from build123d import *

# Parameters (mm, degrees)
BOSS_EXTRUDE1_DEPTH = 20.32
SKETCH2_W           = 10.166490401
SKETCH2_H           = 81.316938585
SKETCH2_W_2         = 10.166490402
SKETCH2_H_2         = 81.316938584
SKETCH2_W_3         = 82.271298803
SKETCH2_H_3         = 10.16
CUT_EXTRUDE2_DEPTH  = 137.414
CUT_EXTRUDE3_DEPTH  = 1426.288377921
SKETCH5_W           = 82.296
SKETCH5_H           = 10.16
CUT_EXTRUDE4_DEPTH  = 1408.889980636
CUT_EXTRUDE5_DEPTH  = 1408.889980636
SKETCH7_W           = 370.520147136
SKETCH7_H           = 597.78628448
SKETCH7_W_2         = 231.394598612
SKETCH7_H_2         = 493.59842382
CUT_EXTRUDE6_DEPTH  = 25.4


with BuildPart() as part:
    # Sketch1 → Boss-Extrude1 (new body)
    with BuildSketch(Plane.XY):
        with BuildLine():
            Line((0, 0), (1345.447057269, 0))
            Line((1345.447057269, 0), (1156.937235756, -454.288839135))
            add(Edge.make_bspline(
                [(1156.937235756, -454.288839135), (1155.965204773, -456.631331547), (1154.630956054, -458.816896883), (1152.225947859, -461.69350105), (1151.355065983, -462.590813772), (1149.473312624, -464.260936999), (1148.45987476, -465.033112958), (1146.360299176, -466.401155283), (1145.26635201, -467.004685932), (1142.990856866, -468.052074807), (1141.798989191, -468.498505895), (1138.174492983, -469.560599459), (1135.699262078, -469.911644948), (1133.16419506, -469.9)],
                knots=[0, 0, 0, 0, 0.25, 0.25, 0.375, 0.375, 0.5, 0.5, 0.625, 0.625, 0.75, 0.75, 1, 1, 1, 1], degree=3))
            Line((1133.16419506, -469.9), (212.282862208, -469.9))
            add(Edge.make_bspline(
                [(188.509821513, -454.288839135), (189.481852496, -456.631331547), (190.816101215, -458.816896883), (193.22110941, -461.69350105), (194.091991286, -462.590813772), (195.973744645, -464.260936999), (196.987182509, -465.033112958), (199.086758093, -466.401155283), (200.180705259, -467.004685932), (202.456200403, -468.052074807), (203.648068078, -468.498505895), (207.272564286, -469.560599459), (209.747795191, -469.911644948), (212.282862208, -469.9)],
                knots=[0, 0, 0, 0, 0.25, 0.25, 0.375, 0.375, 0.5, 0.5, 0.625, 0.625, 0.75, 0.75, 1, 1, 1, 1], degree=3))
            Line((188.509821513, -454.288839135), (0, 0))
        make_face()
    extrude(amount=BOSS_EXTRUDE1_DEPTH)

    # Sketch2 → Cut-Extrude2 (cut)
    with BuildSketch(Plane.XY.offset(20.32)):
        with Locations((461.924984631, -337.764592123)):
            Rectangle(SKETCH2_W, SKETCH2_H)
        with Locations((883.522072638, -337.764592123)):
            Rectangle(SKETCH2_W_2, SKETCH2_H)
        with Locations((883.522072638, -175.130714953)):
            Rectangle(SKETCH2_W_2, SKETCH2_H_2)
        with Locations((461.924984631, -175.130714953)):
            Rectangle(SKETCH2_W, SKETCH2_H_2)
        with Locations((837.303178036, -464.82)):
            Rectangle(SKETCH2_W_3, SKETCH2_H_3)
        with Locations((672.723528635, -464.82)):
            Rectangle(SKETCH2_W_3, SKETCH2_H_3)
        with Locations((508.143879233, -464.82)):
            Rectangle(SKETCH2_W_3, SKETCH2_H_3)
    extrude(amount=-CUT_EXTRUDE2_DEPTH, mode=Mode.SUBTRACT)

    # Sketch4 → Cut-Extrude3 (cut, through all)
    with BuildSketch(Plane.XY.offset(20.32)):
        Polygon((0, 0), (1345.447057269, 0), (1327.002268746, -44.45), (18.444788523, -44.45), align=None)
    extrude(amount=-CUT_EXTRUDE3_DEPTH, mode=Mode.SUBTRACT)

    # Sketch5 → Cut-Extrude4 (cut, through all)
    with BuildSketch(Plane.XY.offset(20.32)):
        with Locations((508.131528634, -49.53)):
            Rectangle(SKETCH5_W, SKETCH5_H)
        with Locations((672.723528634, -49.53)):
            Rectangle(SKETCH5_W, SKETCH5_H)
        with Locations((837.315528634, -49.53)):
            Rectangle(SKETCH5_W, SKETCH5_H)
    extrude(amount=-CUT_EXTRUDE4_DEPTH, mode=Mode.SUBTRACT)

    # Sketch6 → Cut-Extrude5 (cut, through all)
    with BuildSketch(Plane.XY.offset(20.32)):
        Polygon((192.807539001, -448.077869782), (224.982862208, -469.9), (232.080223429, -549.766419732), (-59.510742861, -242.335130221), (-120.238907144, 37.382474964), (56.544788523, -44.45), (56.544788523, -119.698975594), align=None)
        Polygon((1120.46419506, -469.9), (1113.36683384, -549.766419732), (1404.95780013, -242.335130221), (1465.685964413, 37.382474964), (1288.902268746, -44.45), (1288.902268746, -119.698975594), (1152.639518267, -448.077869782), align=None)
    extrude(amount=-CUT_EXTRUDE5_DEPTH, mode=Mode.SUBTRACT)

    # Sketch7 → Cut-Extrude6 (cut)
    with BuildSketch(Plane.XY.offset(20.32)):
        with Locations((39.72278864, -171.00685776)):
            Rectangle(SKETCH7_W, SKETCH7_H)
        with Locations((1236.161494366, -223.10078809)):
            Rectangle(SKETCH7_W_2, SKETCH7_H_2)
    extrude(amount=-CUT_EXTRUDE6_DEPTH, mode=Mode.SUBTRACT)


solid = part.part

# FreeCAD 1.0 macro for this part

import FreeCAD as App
import Part
import Sketcher

V = App.Vector
Q = App.Units.Quantity

doc = App.newDocument("Part")
body = doc.addObject("PartDesign::Body", "Body")

# Sketch on XY plane
sketch1 = doc.addObject("Sketcher::SketchObject", "Sketch")
body.addObject(sketch1)
sketch1.AttachmentSupport = (doc.XY_Plane, [""])
sketch1.MapMode = "FlatFace"
sketch1.addGeometry(Part.LineSegment(V(1345.447057, 0, 0), V(0, 0, 0)), False)
sketch1.addGeometry(Part.LineSegment(V(0, 0, 0), V(188.509822, -454.288839, 0)), False)
sketch1.addGeometry(Part.BSplineCurve([V(188.509822, -454.288839, 0), V(189.481852, -456.631332, 0), V(190.816101, -458.816897, 0), V(193.221109, -461.693501, 0), V(194.091991, -462.590814, 0), V(195.973745, -464.260937, 0), V(196.987183, -465.033113, 0), V(199.086758, -466.401155, 0), V(200.180705, -467.004686, 0), V(202.4562, -468.052075, 0), V(203.648068, -468.498506, 0), V(207.272564, -469.560599, 0), V(209.747795, -469.911645, 0), V(212.282862, -469.9, 0)], [4, 2, 2, 2, 2, 2, 4], [0, 0.25, 0.375, 0.5, 0.625, 0.75, 1], False, 3, [1, 1, 1, 1, 1, 1, 1, 1, 1, 1, 1, 1, 1, 1], False), False)
sketch1.addGeometry(Part.LineSegment(V(212.282862, -469.9, 0), V(1133.164195, -469.9, 0)), False)
sketch1.addGeometry(Part.BSplineCurve([V(1156.937236, -454.288839, 0), V(1155.965205, -456.631332, 0), V(1154.630956, -458.816897, 0), V(1152.225948, -461.693501, 0), V(1151.355066, -462.590814, 0), V(1149.473313, -464.260937, 0), V(1148.459875, -465.033113, 0), V(1146.360299, -466.401155, 0), V(1145.266352, -467.004686, 0), V(1142.990857, -468.052075, 0), V(1141.798989, -468.498506, 0), V(1138.174493, -469.560599, 0), V(1135.699262, -469.911645, 0), V(1133.164195, -469.9, 0)], [4, 2, 2, 2, 2, 2, 4], [0, 0.25, 0.375, 0.5, 0.625, 0.75, 1], False, 3, [1, 1, 1, 1, 1, 1, 1, 1, 1, 1, 1, 1, 1, 1], False), False)
sketch1.addGeometry(Part.LineSegment(V(1156.937236, -454.288839, 0), V(1345.447057, 0, 0)), False)
sketch1.addConstraint(Sketcher.Constraint("Block", 2))
sketch1.addConstraint(Sketcher.Constraint("Block", 4))
sketch1.addConstraint(Sketcher.Constraint("Coincident", 0, 2, 1, 1))
sketch1.addConstraint(Sketcher.Constraint("Coincident", 1, 2, 2, 1))
sketch1.addConstraint(Sketcher.Constraint("Coincident", 2, 2, 3, 1))
sketch1.addConstraint(Sketcher.Constraint("Coincident", 3, 2, 4, 2))
sketch1.addConstraint(Sketcher.Constraint("Coincident", 4, 1, 5, 1))
sketch1.addConstraint(Sketcher.Constraint("Coincident", 5, 2, 0, 1))
sketch1.addConstraint(Sketcher.Constraint("Horizontal", 0))
sketch1.addConstraint(Sketcher.Constraint("Coincident", 0, 2, -1, 1))
sketch1.addConstraint(Sketcher.Constraint("Equal", 1, 5))
pad1 = doc.addObject("PartDesign::Pad", "Pad")
body.addObject(pad1)
pad1.Profile = sketch1
pad1.Length = Q("0.8 in")

# Sketch on XY plane
sketch2 = doc.addObject("Sketcher::SketchObject", "Sketch001")
body.addObject(sketch2)
sketch2.AttachmentSupport = (doc.XY_Plane, [""])
sketch2.MapMode = "FlatFace"
sketch2.AttachmentOffset = App.Placement(V(0, 0, 0.8 * 25.4), App.Rotation())
sketch2.addGeometry(Part.LineSegment(V(457, -297, 0), V(457, -378, 0)), False)
sketch2.addGeometry(Part.LineSegment(V(457, -378, 0), V(467, -378, 0)), False)
sketch2.addGeometry(Part.LineSegment(V(467, -378, 0), V(467, -297, 0)), False)
sketch2.addGeometry(Part.LineSegment(V(467, -297, 0), V(457, -297, 0)), False)
sketch2.addGeometry(Part.LineSegment(V(878, -297, 0), V(878, -378, 0)), False)
sketch2.addGeometry(Part.LineSegment(V(878, -378, 0), V(889, -378, 0)), False)
sketch2.addGeometry(Part.LineSegment(V(889, -378, 0), V(889, -297, 0)), False)
sketch2.addGeometry(Part.LineSegment(V(889, -297, 0), V(878, -297, 0)), False)
sketch2.addGeometry(Part.LineSegment(V(878, -134, 0), V(878, -216, 0)), False)
sketch2.addGeometry(Part.LineSegment(V(878, -216, 0), V(889, -216, 0)), False)
sketch2.addGeometry(Part.LineSegment(V(889, -216, 0), V(889, -134, 0)), False)
sketch2.addGeometry(Part.LineSegment(V(889, -134, 0), V(878, -134, 0)), False)
sketch2.addGeometry(Part.LineSegment(V(457, -134, 0), V(457, -216, 0)), False)
sketch2.addGeometry(Part.LineSegment(V(457, -216, 0), V(467, -216, 0)), False)
sketch2.addGeometry(Part.LineSegment(V(467, -216, 0), V(467, -134, 0)), False)
sketch2.addGeometry(Part.LineSegment(V(467, -134, 0), V(457, -134, 0)), False)
sketch2.addGeometry(Part.LineSegment(V(796, -460, 0), V(796, -470, 0)), False)
sketch2.addGeometry(Part.LineSegment(V(796, -470, 0), V(878, -470, 0)), False)
sketch2.addGeometry(Part.LineSegment(V(878, -470, 0), V(878, -460, 0)), False)
sketch2.addGeometry(Part.LineSegment(V(878, -460, 0), V(796, -460, 0)), False)
sketch2.addGeometry(Part.LineSegment(V(632, -460, 0), V(632, -470, 0)), False)
sketch2.addGeometry(Part.LineSegment(V(632, -470, 0), V(714, -470, 0)), False)
sketch2.addGeometry(Part.LineSegment(V(714, -470, 0), V(714, -460, 0)), False)
sketch2.addGeometry(Part.LineSegment(V(714, -460, 0), V(632, -460, 0)), False)
sketch2.addGeometry(Part.LineSegment(V(467, -460, 0), V(467, -470, 0)), False)
sketch2.addGeometry(Part.LineSegment(V(467, -470, 0), V(549, -470, 0)), False)
sketch2.addGeometry(Part.LineSegment(V(549, -470, 0), V(549, -460, 0)), False)
sketch2.addGeometry(Part.LineSegment(V(549, -460, 0), V(467, -460, 0)), False)
sketch2.addConstraint(Sketcher.Constraint("Coincident", 0, 2, 1, 1))
sketch2.addConstraint(Sketcher.Constraint("Coincident", 1, 2, 2, 1))
sketch2.addConstraint(Sketcher.Constraint("Coincident", 2, 2, 3, 1))
sketch2.addConstraint(Sketcher.Constraint("Coincident", 3, 2, 0, 1))
sketch2.addConstraint(Sketcher.Constraint("Coincident", 4, 2, 5, 1))
sketch2.addConstraint(Sketcher.Constraint("Coincident", 5, 2, 6, 1))
sketch2.addConstraint(Sketcher.Constraint("Coincident", 6, 2, 7, 1))
sketch2.addConstraint(Sketcher.Constraint("Coincident", 7, 2, 4, 1))
sketch2.addConstraint(Sketcher.Constraint("Coincident", 8, 2, 9, 1))
sketch2.addConstraint(Sketcher.Constraint("Coincident", 9, 2, 10, 1))
sketch2.addConstraint(Sketcher.Constraint("Coincident", 10, 2, 11, 1))
sketch2.addConstraint(Sketcher.Constraint("Coincident", 11, 2, 8, 1))
sketch2.addConstraint(Sketcher.Constraint("Coincident", 12, 2, 13, 1))
sketch2.addConstraint(Sketcher.Constraint("Coincident", 13, 2, 14, 1))
sketch2.addConstraint(Sketcher.Constraint("Coincident", 14, 2, 15, 1))
sketch2.addConstraint(Sketcher.Constraint("Coincident", 15, 2, 12, 1))
sketch2.addConstraint(Sketcher.Constraint("Coincident", 16, 2, 17, 1))
sketch2.addConstraint(Sketcher.Constraint("Coincident", 17, 2, 18, 1))
sketch2.addConstraint(Sketcher.Constraint("Coincident", 18, 2, 19, 1))
sketch2.addConstraint(Sketcher.Constraint("Coincident", 19, 2, 16, 1))
sketch2.addConstraint(Sketcher.Constraint("Coincident", 20, 2, 21, 1))
sketch2.addConstraint(Sketcher.Constraint("Coincident", 21, 2, 22, 1))
sketch2.addConstraint(Sketcher.Constraint("Coincident", 22, 2, 23, 1))
sketch2.addConstraint(Sketcher.Constraint("Coincident", 23, 2, 20, 1))
sketch2.addConstraint(Sketcher.Constraint("Coincident", 24, 2, 25, 1))
sketch2.addConstraint(Sketcher.Constraint("Coincident", 25, 2, 26, 1))
sketch2.addConstraint(Sketcher.Constraint("Coincident", 26, 2, 27, 1))
sketch2.addConstraint(Sketcher.Constraint("Coincident", 27, 2, 24, 1))
sketch2.addConstraint(Sketcher.Constraint("Vertical", 0))
sketch2.addConstraint(Sketcher.Constraint("Horizontal", 1))
sketch2.addConstraint(Sketcher.Constraint("Vertical", 2))
sketch2.addConstraint(Sketcher.Constraint("Horizontal", 3))
sketch2.addConstraint(Sketcher.Constraint("Vertical", 4))
sketch2.addConstraint(Sketcher.Constraint("Horizontal", 5))
sketch2.addConstraint(Sketcher.Constraint("Vertical", 6))
sketch2.addConstraint(Sketcher.Constraint("Horizontal", 7))
sketch2.addConstraint(Sketcher.Constraint("Vertical", 8))
sketch2.addConstraint(Sketcher.Constraint("Horizontal", 9))
sketch2.addConstraint(Sketcher.Constraint("Vertical", 10))
sketch2.addConstraint(Sketcher.Constraint("Horizontal", 11))
sketch2.addConstraint(Sketcher.Constraint("Vertical", 12))
sketch2.addConstraint(Sketcher.Constraint("Horizontal", 13))
sketch2.addConstraint(Sketcher.Constraint("Vertical", 14))
sketch2.addConstraint(Sketcher.Constraint("Horizontal", 15))
sketch2.addConstraint(Sketcher.Constraint("Vertical", 16))
sketch2.addConstraint(Sketcher.Constraint("Horizontal", 17))
sketch2.addConstraint(Sketcher.Constraint("Vertical", 18))
sketch2.addConstraint(Sketcher.Constraint("Horizontal", 19))
sketch2.addConstraint(Sketcher.Constraint("Vertical", 20))
sketch2.addConstraint(Sketcher.Constraint("Horizontal", 21))
sketch2.addConstraint(Sketcher.Constraint("Vertical", 22))
sketch2.addConstraint(Sketcher.Constraint("Horizontal", 23))
sketch2.addConstraint(Sketcher.Constraint("Vertical", 24))
sketch2.addConstraint(Sketcher.Constraint("Horizontal", 25))
sketch2.addConstraint(Sketcher.Constraint("Vertical", 26))
sketch2.addConstraint(Sketcher.Constraint("Horizontal", 27))
sketch2.addConstraint(Sketcher.Constraint("Horizontal", 1, 2, 4, 2))
sketch2.addConstraint(Sketcher.Constraint("Horizontal", 3, 2, 6, 2))
sketch2.addConstraint(Sketcher.Constraint("Horizontal", 9, 2, 12, 2))
sketch2.addConstraint(Sketcher.Constraint("Horizontal", 11, 2, 14, 2))
sketch2.addConstraint(Sketcher.Constraint("Horizontal", 17, 2, 20, 2))
sketch2.addConstraint(Sketcher.Constraint("Horizontal", 19, 2, 22, 2))
sketch2.addConstraint(Sketcher.Constraint("Horizontal", 21, 2, 24, 2))
sketch2.addConstraint(Sketcher.Constraint("Horizontal", 23, 2, 26, 2))
sketch2.addConstraint(Sketcher.Constraint("Vertical", 7, 2, 8, 2))
sketch2.addConstraint(Sketcher.Constraint("Vertical", 6, 2, 9, 2))
sketch2.addConstraint(Sketcher.Constraint("Vertical", 3, 2, 12, 2))
sketch2.addConstraint(Sketcher.Constraint("Vertical", 2, 2, 13, 2))
sketch2.addConstraint(Sketcher.Constraint("Vertical", 11, 2, 17, 2))
sketch2.addConstraint(Sketcher.Constraint("Vertical", 14, 2, 24, 2))
sketch2.addConstraint(Sketcher.Constraint("Equal", 3, 5))
sketch2.addConstraint(Sketcher.Constraint("Equal", 19, 21))
sketch2.addConstraint(Sketcher.Constraint("Equal", 23, 25))
sketch2.addConstraint(Sketcher.Constraint("Equal", 6, 8))
sketch2.addConstraint(Sketcher.Constraint("DistanceY", 16, 2, 16, 1, Q("0.4 in")))
sketch2.addConstraint(Sketcher.Constraint("DistanceY", 16, 2, -1, 1, Q("18.5 in")))
sketch2.addConstraint(Sketcher.Constraint("DistanceX", 17, 1, 17, 2, 82.271299))
sketch2.addConstraint(Sketcher.Constraint("DistanceX", 1, 1, 1, 2, 10.16649))
sketch2.addConstraint(Sketcher.Constraint("DistanceY", 0, 2, 0, 1, 81.316939))
sketch2.addConstraint(Sketcher.Constraint("DistanceX", -1, 1, 0, 2, 456.841739))
sketch2.addConstraint(Sketcher.Constraint("DistanceY", 0, 2, -1, 1, 378.423061))
sketch2.addConstraint(Sketcher.Constraint("DistanceX", -1, 1, 16, 2, 796.167529))
sketch2.addConstraint(Sketcher.Constraint("DistanceX", -1, 1, 20, 2, 631.587879))
sketch2.addConstraint(Sketcher.Constraint("DistanceY", 7, 2, 8, 2, 81.316939))
pocket1 = doc.addObject("PartDesign::Pocket", "Pocket")
body.addObject(pocket1)
pocket1.Profile = sketch2
pocket1.Length = Q("5.41 in")

# Sketch on XY plane
sketch3 = doc.addObject("Sketcher::SketchObject", "Sketch002")
body.addObject(sketch3)
sketch3.AttachmentSupport = (doc.XY_Plane, [""])
sketch3.MapMode = "FlatFace"
sketch3.AttachmentOffset = App.Placement(V(0, 0, 0.8 * 25.4), App.Rotation())
sketch3.addGeometry(Part.LineSegment(V(1345, 0, 0), V(0, 0, 0)), False)
sketch3.addGeometry(Part.LineSegment(V(0, 0, 0), V(18, -44, 0)), False)
sketch3.addGeometry(Part.LineSegment(V(18, -44, 0), V(1327, -44, 0)), False)
sketch3.addGeometry(Part.LineSegment(V(1327, -44, 0), V(1345, 0, 0)), False)
sketch3.addConstraint(Sketcher.Constraint("Coincident", 0, 2, 1, 1))
sketch3.addConstraint(Sketcher.Constraint("Coincident", 1, 2, 2, 1))
sketch3.addConstraint(Sketcher.Constraint("Coincident", 2, 2, 3, 1))
sketch3.addConstraint(Sketcher.Constraint("Coincident", 3, 2, 0, 1))
sketch3.addConstraint(Sketcher.Constraint("Horizontal", 0))
sketch3.addConstraint(Sketcher.Constraint("Horizontal", 2))
sketch3.addConstraint(Sketcher.Constraint("Coincident", 0, 2, -1, 1))
sketch3.addConstraint(Sketcher.Constraint("Equal", 1, 3))
sketch3.addConstraint(Sketcher.Constraint("DistanceY", 1, 2, -1, 1, Q("1.75 in")))
sketch3.addConstraint(Sketcher.Constraint("DistanceX", 2, 1, 2, 2, 1308.55748))
sketch3.addConstraint(Sketcher.Constraint("Distance", 1, 48.12497))
pocket2 = doc.addObject("PartDesign::Pocket", "Pocket001")
body.addObject(pocket2)
pocket2.Profile = sketch3
pocket2.Type = "ThroughAll"

# Sketch on XY plane
sketch4 = doc.addObject("Sketcher::SketchObject", "Sketch003")
body.addObject(sketch4)
sketch4.AttachmentSupport = (doc.XY_Plane, [""])
sketch4.MapMode = "FlatFace"
sketch4.AttachmentOffset = App.Placement(V(0, 0, 0.8 * 25.4), App.Rotation())
sketch4.addGeometry(Part.LineSegment(V(467, -44, 0), V(467, -55, 0)), False)
sketch4.addGeometry(Part.LineSegment(V(467, -55, 0), V(549, -55, 0)), False)
sketch4.addGeometry(Part.LineSegment(V(549, -55, 0), V(549, -44, 0)), False)
sketch4.addGeometry(Part.LineSegment(V(549, -44, 0), V(467, -44, 0)), False)
sketch4.addGeometry(Part.LineSegment(V(632, -44, 0), V(632, -55, 0)), False)
sketch4.addGeometry(Part.LineSegment(V(632, -55, 0), V(714, -55, 0)), False)
sketch4.addGeometry(Part.LineSegment(V(714, -55, 0), V(714, -44, 0)), False)
sketch4.addGeometry(Part.LineSegment(V(714, -44, 0), V(632, -44, 0)), False)
sketch4.addGeometry(Part.LineSegment(V(796, -44, 0), V(796, -55, 0)), False)
sketch4.addGeometry(Part.LineSegment(V(796, -55, 0), V(878, -55, 0)), False)
sketch4.addGeometry(Part.LineSegment(V(878, -55, 0), V(878, -44, 0)), False)
sketch4.addGeometry(Part.LineSegment(V(878, -44, 0), V(796, -44, 0)), False)
sketch4.addConstraint(Sketcher.Constraint("Coincident", 0, 2, 1, 1))
sketch4.addConstraint(Sketcher.Constraint("Coincident", 1, 2, 2, 1))
sketch4.addConstraint(Sketcher.Constraint("Coincident", 2, 2, 3, 1))
sketch4.addConstraint(Sketcher.Constraint("Coincident", 3, 2, 0, 1))
sketch4.addConstraint(Sketcher.Constraint("Coincident", 4, 2, 5, 1))
sketch4.addConstraint(Sketcher.Constraint("Coincident", 5, 2, 6, 1))
sketch4.addConstraint(Sketcher.Constraint("Coincident", 6, 2, 7, 1))
sketch4.addConstraint(Sketcher.Constraint("Coincident", 7, 2, 4, 1))
sketch4.addConstraint(Sketcher.Constraint("Coincident", 8, 2, 9, 1))
sketch4.addConstraint(Sketcher.Constraint("Coincident", 9, 2, 10, 1))
sketch4.addConstraint(Sketcher.Constraint("Coincident", 10, 2, 11, 1))
sketch4.addConstraint(Sketcher.Constraint("Coincident", 11, 2, 8, 1))
sketch4.addConstraint(Sketcher.Constraint("Vertical", 0))
sketch4.addConstraint(Sketcher.Constraint("Horizontal", 1))
sketch4.addConstraint(Sketcher.Constraint("Vertical", 2))
sketch4.addConstraint(Sketcher.Constraint("Horizontal", 3))
sketch4.addConstraint(Sketcher.Constraint("Vertical", 4))
sketch4.addConstraint(Sketcher.Constraint("Horizontal", 5))
sketch4.addConstraint(Sketcher.Constraint("Vertical", 6))
sketch4.addConstraint(Sketcher.Constraint("Horizontal", 7))
sketch4.addConstraint(Sketcher.Constraint("Vertical", 8))
sketch4.addConstraint(Sketcher.Constraint("Horizontal", 9))
sketch4.addConstraint(Sketcher.Constraint("Vertical", 10))
sketch4.addConstraint(Sketcher.Constraint("Horizontal", 11))
sketch4.addConstraint(Sketcher.Constraint("Horizontal", 1, 2, 4, 2))
sketch4.addConstraint(Sketcher.Constraint("Horizontal", 3, 2, 6, 2))
sketch4.addConstraint(Sketcher.Constraint("Horizontal", 5, 2, 8, 2))
sketch4.addConstraint(Sketcher.Constraint("Horizontal", 7, 2, 10, 2))
sketch4.addConstraint(Sketcher.Constraint("Equal", 3, 5))
sketch4.addConstraint(Sketcher.Constraint("Equal", 7, 9))
sketch4.addConstraint(Sketcher.Constraint("DistanceY", 0, 2, 0, 1, Q("0.4 in")))
sketch4.addConstraint(Sketcher.Constraint("DistanceX", 1, 1, 1, 2, Q("3.24 in")))
sketch4.addConstraint(Sketcher.Constraint("DistanceY", 0, 2, -1, 1, Q("2.15 in")))
sketch4.addConstraint(Sketcher.Constraint("DistanceX", 1, 2, 4, 2, Q("3.24 in")))
sketch4.addConstraint(Sketcher.Constraint("DistanceX", 5, 2, 8, 2, Q("3.24 in")))
sketch4.addConstraint(Sketcher.Constraint("DistanceX", -1, 1, 0, 2, 466.983529))
pocket3 = doc.addObject("PartDesign::Pocket", "Pocket002")
body.addObject(pocket3)
pocket3.Profile = sketch4
pocket3.Type = "ThroughAll"

# Sketch on XY plane
sketch5 = doc.addObject("Sketcher::SketchObject", "Sketch004")
body.addObject(sketch5)
sketch5.AttachmentSupport = (doc.XY_Plane, [""])
sketch5.MapMode = "FlatFace"
sketch5.AttachmentOffset = App.Placement(V(0, 0, 0.8 * 25.4), App.Rotation())
sketch5.addGeometry(Part.LineSegment(V(225, -470, 0), V(193, -448, 0)), False)
sketch5.addGeometry(Part.LineSegment(V(193, -448, 0), V(57, -120, 0)), False)
sketch5.addGeometry(Part.LineSegment(V(57, -120, 0), V(57, -44, 0)), False)
sketch5.addGeometry(Part.LineSegment(V(57, -44, 0), V(-120, 37, 0)), False)
sketch5.addGeometry(Part.LineSegment(V(-120, 37, 0), V(-60, -242, 0)), False)
sketch5.addGeometry(Part.LineSegment(V(-60, -242, 0), V(232, -550, 0)), False)
sketch5.addGeometry(Part.LineSegment(V(232, -550, 0), V(225, -470, 0)), False)
sketch5.addGeometry(Part.LineSegment(V(1120, -470, 0), V(1113, -550, 0)), False)
sketch5.addGeometry(Part.LineSegment(V(1113, -550, 0), V(1405, -242, 0)), False)
sketch5.addGeometry(Part.LineSegment(V(1405, -242, 0), V(1466, 37, 0)), False)
sketch5.addGeometry(Part.LineSegment(V(1466, 37, 0), V(1289, -44, 0)), False)
sketch5.addGeometry(Part.LineSegment(V(1289, -44, 0), V(1289, -120, 0)), False)
sketch5.addGeometry(Part.LineSegment(V(1289, -120, 0), V(1153, -448, 0)), False)
sketch5.addGeometry(Part.LineSegment(V(1153, -448, 0), V(1120, -470, 0)), False)
sketch5.addConstraint(Sketcher.Constraint("Coincident", 0, 2, 1, 1))
sketch5.addConstraint(Sketcher.Constraint("Coincident", 1, 2, 2, 1))
sketch5.addConstraint(Sketcher.Constraint("Coincident", 2, 2, 3, 1))
sketch5.addConstraint(Sketcher.Constraint("Coincident", 3, 2, 4, 1))
sketch5.addConstraint(Sketcher.Constraint("Coincident", 4, 2, 5, 1))
sketch5.addConstraint(Sketcher.Constraint("Coincident", 5, 2, 6, 1))
sketch5.addConstraint(Sketcher.Constraint("Coincident", 6, 2, 0, 1))
sketch5.addConstraint(Sketcher.Constraint("Coincident", 7, 2, 8, 1))
sketch5.addConstraint(Sketcher.Constraint("Coincident", 8, 2, 9, 1))
sketch5.addConstraint(Sketcher.Constraint("Coincident", 9, 2, 10, 1))
sketch5.addConstraint(Sketcher.Constraint("Coincident", 10, 2, 11, 1))
sketch5.addConstraint(Sketcher.Constraint("Coincident", 11, 2, 12, 1))
sketch5.addConstraint(Sketcher.Constraint("Coincident", 12, 2, 13, 1))
sketch5.addConstraint(Sketcher.Constraint("Coincident", 13, 2, 7, 1))
sketch5.addConstraint(Sketcher.Constraint("Vertical", 2))
sketch5.addConstraint(Sketcher.Constraint("Vertical", 11))
sketch5.addConstraint(Sketcher.Constraint("Horizontal", 5, 2, 7, 2))
sketch5.addConstraint(Sketcher.Constraint("Horizontal", 4, 2, 8, 2))
sketch5.addConstraint(Sketcher.Constraint("Horizontal", 3, 2, 9, 2))
sketch5.addConstraint(Sketcher.Constraint("Horizontal", 2, 2, 10, 2))
sketch5.addConstraint(Sketcher.Constraint("Horizontal", 1, 2, 11, 2))
sketch5.addConstraint(Sketcher.Constraint("Horizontal", 0, 2, 12, 2))
sketch5.addConstraint(Sketcher.Constraint("Horizontal", 6, 2, 13, 2))
sketch5.addConstraint(Sketcher.Constraint("Equal", 6, 7))
sketch5.addConstraint(Sketcher.Constraint("Equal", 5, 8))
sketch5.addConstraint(Sketcher.Constraint("Equal", 4, 9))
sketch5.addConstraint(Sketcher.Constraint("Equal", 3, 10))
sketch5.addConstraint(Sketcher.Constraint("Equal", 1, 12))
sketch5.addConstraint(Sketcher.Constraint("DistanceY", 6, 2, -1, 1, Q("18.5 in")))
sketch5.addConstraint(Sketcher.Constraint("DistanceY", 2, 2, -1, 1, Q("1.75 in")))
sketch5.addConstraint(Sketcher.Constraint("DistanceX", -1, 1, 8, 2, 1404.9578))
sketch5.addConstraint(Sketcher.Constraint("Distance", 0, 38.877459))
sketch5.addConstraint(Sketcher.Constraint("Distance", 5, 423.720768))
sketch5.addConstraint(Sketcher.Constraint("DistanceY", 2, 1, 2, 2, 75.248976))
sketch5.addConstraint(Sketcher.Constraint("DistanceX", -1, 1, 0, 2, 192.807539))
sketch5.addConstraint(Sketcher.Constraint("DistanceY", 0, 2, -1, 1, 448.07787))
sketch5.addConstraint(Sketcher.Constraint("DistanceX", -1, 1, 1, 2, 56.544789))
sketch5.addConstraint(Sketcher.Constraint("DistanceY", 4, 2, -1, 1, 242.33513))
sketch5.addConstraint(Sketcher.Constraint("DistanceY", 5, 2, -1, 1, 549.76642))
sketch5.addConstraint(Sketcher.Constraint("DistanceX", -1, 1, 10, 2, 1288.902269))
sketch5.addConstraint(Sketcher.Constraint("DistanceY", 1, 2, 3, 2, 157.081451))
sketch5.addConstraint(Sketcher.Constraint("DistanceX", 3, 2, 5, 2, 352.319131))
pocket4 = doc.addObject("PartDesign::Pocket", "Pocket003")
body.addObject(pocket4)
pocket4.Profile = sketch5
pocket4.Type = "ThroughAll"

# Sketch on XY plane
sketch6 = doc.addObject("Sketcher::SketchObject", "Sketch005")
body.addObject(sketch6)
sketch6.AttachmentSupport = (doc.XY_Plane, [""])
sketch6.MapMode = "FlatFace"
sketch6.AttachmentOffset = App.Placement(V(0, 0, 0.8 * 25.4), App.Rotation())
sketch6.addGeometry(Part.LineSegment(V(-146, 128, 0), V(-146, -470, 0)), False)
sketch6.addGeometry(Part.LineSegment(V(-146, -470, 0), V(225, -470, 0)), False)
sketch6.addGeometry(Part.LineSegment(V(225, -470, 0), V(225, 128, 0)), False)
sketch6.addGeometry(Part.LineSegment(V(225, 128, 0), V(-146, 128, 0)), False)
sketch6.addGeometry(Part.LineSegment(V(1120, 24, 0), V(1120, -470, 0)), False)
sketch6.addGeometry(Part.LineSegment(V(1120, -470, 0), V(1352, -470, 0)), False)
sketch6.addGeometry(Part.LineSegment(V(1352, -470, 0), V(1352, 24, 0)), False)
sketch6.addGeometry(Part.LineSegment(V(1352, 24, 0), V(1120, 24, 0)), False)
sketch6.addConstraint(Sketcher.Constraint("Coincident", 0, 2, 1, 1))
sketch6.addConstraint(Sketcher.Constraint("Coincident", 1, 2, 2, 1))
sketch6.addConstraint(Sketcher.Constraint("Coincident", 2, 2, 3, 1))
sketch6.addConstraint(Sketcher.Constraint("Coincident", 3, 2, 0, 1))
sketch6.addConstraint(Sketcher.Constraint("Coincident", 4, 2, 5, 1))
sketch6.addConstraint(Sketcher.Constraint("Coincident", 5, 2, 6, 1))
sketch6.addConstraint(Sketcher.Constraint("Coincident", 6, 2, 7, 1))
sketch6.addConstraint(Sketcher.Constraint("Coincident", 7, 2, 4, 1))
sketch6.addConstraint(Sketcher.Constraint("Vertical", 0))
sketch6.addConstraint(Sketcher.Constraint("Horizontal", 1))
sketch6.addConstraint(Sketcher.Constraint("Vertical", 2))
sketch6.addConstraint(Sketcher.Constraint("Horizontal", 3))
sketch6.addConstraint(Sketcher.Constraint("Vertical", 4))
sketch6.addConstraint(Sketcher.Constraint("Horizontal", 5))
sketch6.addConstraint(Sketcher.Constraint("Vertical", 6))
sketch6.addConstraint(Sketcher.Constraint("Horizontal", 7))
sketch6.addConstraint(Sketcher.Constraint("Horizontal", 1, 2, 4, 2))
sketch6.addConstraint(Sketcher.Constraint("DistanceY", 0, 2, -1, 1, Q("18.5 in")))
sketch6.addConstraint(Sketcher.Constraint("DistanceX", 5, 1, 5, 2, 231.394599))
sketch6.addConstraint(Sketcher.Constraint("DistanceX", 1, 1, 1, 2, 370.520147))
sketch6.addConstraint(Sketcher.Constraint("DistanceY", 0, 2, 0, 1, 597.786284))
sketch6.addConstraint(Sketcher.Constraint("DistanceY", 4, 2, 4, 1, 493.598424))
sketch6.addConstraint(Sketcher.Constraint("DistanceX", 0, 2, 4, 2, 1266.00148))
sketch6.addConstraint(Sketcher.Constraint("DistanceX", 0, 2, -1, 1, 145.537285))
pocket5 = doc.addObject("PartDesign::Pocket", "Pocket004")
body.addObject(pocket5)
pocket5.Profile = sketch6
pocket5.Length = Q("1 in")

doc.recompute()
